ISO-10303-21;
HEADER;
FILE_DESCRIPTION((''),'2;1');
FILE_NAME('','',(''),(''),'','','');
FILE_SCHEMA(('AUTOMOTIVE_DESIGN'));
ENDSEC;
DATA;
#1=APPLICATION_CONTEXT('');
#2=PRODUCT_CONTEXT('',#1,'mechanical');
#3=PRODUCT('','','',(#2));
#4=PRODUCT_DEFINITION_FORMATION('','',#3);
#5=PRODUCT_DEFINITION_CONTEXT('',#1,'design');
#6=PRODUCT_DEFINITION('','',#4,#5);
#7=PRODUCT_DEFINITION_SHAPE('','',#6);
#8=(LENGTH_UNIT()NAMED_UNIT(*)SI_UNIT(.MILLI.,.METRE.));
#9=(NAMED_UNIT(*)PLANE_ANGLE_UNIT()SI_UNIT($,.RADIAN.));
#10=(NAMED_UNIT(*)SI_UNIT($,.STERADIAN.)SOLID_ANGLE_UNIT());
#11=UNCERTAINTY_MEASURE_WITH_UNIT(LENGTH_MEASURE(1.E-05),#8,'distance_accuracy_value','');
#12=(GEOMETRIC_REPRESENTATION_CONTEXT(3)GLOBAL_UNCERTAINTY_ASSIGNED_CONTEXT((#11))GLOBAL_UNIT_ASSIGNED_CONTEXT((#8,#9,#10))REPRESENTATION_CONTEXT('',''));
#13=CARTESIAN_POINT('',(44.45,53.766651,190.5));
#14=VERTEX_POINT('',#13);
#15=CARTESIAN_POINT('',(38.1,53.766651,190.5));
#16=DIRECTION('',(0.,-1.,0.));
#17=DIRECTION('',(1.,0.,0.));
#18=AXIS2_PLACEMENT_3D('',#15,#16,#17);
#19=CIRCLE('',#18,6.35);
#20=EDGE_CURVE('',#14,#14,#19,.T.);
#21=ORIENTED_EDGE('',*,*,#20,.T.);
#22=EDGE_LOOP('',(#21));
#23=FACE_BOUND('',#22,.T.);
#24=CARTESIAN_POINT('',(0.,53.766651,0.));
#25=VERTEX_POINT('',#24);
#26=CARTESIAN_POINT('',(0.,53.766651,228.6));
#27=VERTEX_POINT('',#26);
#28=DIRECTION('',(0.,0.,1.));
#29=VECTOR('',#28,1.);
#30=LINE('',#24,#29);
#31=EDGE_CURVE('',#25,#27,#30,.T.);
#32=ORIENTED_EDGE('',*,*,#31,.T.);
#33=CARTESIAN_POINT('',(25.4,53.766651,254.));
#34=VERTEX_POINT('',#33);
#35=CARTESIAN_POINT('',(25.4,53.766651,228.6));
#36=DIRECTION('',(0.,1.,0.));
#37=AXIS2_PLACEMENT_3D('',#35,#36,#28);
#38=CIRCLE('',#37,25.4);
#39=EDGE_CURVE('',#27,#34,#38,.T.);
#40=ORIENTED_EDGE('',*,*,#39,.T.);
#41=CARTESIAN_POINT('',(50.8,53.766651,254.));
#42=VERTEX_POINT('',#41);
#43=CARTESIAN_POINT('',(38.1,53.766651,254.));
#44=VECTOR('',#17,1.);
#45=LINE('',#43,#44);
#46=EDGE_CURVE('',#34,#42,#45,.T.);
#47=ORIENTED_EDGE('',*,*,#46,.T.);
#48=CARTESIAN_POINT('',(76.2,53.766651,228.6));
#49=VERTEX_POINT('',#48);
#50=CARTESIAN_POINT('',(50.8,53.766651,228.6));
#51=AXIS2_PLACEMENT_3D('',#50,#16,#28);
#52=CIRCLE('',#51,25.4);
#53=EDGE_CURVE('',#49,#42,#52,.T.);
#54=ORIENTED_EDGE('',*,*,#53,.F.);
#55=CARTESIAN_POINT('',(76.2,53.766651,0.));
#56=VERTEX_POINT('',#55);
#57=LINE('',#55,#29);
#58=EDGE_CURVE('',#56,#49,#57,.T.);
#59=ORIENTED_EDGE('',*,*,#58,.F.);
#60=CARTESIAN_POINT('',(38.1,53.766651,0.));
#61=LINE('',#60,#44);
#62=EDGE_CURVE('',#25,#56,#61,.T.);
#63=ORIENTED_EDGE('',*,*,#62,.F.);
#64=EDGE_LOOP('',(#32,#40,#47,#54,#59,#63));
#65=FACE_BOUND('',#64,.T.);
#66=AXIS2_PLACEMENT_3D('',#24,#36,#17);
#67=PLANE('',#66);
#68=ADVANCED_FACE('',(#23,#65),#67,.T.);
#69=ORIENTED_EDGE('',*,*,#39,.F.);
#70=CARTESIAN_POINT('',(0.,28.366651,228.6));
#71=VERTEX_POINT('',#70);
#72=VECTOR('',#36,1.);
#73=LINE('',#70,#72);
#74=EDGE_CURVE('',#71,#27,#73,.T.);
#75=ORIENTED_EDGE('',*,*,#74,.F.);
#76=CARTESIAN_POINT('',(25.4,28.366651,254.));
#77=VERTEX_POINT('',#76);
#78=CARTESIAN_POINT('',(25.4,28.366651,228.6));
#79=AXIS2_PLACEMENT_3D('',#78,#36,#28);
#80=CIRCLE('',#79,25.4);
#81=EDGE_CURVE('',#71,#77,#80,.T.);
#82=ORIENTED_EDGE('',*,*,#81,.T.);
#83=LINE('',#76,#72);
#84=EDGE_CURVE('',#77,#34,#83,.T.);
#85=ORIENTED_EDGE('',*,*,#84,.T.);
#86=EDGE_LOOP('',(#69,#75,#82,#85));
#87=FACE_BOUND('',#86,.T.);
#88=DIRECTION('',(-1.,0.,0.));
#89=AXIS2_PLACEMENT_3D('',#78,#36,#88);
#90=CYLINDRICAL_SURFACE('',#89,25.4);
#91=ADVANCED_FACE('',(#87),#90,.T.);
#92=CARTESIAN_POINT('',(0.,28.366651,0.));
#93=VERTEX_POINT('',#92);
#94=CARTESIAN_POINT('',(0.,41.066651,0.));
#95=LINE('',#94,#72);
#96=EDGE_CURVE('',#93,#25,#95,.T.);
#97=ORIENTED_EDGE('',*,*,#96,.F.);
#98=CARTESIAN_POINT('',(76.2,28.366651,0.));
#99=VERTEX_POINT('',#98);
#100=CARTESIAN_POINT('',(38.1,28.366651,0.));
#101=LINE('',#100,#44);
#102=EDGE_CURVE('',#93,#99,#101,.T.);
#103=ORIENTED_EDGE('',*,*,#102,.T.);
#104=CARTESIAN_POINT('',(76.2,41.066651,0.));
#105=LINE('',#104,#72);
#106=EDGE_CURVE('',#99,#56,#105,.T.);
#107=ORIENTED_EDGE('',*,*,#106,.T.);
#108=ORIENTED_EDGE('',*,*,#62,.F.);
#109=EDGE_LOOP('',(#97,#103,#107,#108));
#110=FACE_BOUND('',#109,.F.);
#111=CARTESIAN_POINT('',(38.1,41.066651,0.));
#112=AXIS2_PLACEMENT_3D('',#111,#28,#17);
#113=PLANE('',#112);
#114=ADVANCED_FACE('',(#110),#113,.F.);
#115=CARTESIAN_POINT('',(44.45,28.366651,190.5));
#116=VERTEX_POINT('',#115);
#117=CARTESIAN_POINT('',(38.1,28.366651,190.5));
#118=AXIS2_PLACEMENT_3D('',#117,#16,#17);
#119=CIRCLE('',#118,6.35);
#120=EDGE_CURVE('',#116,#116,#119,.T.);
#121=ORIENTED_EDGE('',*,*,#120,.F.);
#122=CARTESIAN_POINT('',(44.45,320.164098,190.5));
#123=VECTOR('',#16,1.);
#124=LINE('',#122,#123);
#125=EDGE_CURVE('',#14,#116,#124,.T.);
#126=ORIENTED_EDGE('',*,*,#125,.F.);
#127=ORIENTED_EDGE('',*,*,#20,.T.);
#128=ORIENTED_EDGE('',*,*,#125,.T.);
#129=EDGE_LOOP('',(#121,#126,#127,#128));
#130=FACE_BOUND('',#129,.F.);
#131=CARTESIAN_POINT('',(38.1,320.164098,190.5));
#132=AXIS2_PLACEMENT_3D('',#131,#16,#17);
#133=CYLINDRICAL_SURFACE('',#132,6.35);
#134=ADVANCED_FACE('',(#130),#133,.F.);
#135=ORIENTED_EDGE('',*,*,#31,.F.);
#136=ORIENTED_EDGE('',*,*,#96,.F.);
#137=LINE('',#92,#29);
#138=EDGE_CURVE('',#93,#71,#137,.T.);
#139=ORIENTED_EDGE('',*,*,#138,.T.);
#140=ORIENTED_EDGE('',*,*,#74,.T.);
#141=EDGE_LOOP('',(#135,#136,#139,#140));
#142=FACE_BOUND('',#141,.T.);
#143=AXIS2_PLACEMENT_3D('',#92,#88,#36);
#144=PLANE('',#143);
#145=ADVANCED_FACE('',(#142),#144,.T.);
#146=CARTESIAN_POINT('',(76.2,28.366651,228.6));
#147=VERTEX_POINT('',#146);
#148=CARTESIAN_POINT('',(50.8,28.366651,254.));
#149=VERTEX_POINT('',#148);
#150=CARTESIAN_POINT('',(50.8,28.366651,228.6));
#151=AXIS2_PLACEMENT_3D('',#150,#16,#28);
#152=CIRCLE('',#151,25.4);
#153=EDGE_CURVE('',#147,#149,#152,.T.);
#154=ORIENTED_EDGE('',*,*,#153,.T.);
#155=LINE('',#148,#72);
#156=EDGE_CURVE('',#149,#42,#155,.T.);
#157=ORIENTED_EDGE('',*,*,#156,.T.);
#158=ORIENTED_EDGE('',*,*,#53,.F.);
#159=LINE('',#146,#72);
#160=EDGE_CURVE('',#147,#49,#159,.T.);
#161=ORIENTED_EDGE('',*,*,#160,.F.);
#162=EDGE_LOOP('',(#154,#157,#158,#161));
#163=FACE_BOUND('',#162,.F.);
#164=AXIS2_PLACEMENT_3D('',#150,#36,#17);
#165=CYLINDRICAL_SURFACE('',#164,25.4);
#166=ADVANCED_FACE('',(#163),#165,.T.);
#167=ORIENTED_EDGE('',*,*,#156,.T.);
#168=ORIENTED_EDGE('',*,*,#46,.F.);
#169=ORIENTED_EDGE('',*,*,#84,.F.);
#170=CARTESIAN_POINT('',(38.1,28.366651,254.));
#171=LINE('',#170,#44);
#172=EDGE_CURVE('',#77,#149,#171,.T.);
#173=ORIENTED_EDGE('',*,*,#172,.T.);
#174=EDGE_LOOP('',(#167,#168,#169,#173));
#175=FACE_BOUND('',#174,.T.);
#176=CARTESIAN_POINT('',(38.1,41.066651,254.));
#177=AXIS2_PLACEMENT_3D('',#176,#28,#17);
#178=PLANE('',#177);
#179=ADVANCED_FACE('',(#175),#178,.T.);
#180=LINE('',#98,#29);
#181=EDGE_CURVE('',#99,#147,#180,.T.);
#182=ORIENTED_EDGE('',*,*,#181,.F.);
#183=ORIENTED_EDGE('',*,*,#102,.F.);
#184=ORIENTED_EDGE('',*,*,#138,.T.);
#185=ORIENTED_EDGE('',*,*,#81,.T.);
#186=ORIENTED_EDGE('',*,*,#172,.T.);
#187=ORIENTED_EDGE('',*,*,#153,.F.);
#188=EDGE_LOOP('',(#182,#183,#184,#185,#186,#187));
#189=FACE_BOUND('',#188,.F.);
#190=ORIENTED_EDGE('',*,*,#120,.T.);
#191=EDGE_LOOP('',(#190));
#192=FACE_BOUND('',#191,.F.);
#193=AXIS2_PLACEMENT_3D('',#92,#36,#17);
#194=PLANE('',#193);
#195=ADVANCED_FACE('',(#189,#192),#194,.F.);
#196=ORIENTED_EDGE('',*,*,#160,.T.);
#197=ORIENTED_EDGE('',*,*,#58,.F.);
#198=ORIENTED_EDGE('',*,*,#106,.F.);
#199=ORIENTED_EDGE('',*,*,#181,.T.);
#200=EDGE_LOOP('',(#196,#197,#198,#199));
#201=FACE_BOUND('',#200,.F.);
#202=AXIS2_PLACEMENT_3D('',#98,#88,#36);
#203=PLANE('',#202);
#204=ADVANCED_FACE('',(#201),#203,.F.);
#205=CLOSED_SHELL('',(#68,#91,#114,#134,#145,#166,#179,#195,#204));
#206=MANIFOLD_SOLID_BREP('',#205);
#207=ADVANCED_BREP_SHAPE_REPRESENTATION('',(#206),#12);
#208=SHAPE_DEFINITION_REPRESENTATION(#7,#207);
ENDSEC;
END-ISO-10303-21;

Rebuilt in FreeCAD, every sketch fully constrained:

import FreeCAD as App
import Part
import Sketcher

V = App.Vector
Q = App.Units.Quantity


def edges_at(feature, points):
    """Names of the edges that pass closest to the given points."""
    edges = feature.Shape.Edges
    near = lambda p: min(range(len(edges)), key=lambda i: edges[i].distToShape(Part.Vertex(*p))[0])
    return sorted({f"Edge{near(p) + 1}" for p in points})

doc = App.newDocument("Part")
body = doc.addObject("PartDesign::Body", "Body")

# Sketch on XY plane
sketch1 = body.newObject("Sketcher::SketchObject", "Sketch")
sketch1.AttachmentSupport = (doc.getObject("XY_Plane"), [""])
sketch1.MapMode = "FlatFace"
sketch1.addGeometry([
    Part.LineSegment(V(0, 53.766651, 0), V(0, 28.366651, 0)),
    Part.LineSegment(V(0, 28.366651, 0), V(76.2, 28.366651, 0)),
    Part.LineSegment(V(76.2, 28.366651, 0), V(76.2, 53.766651, 0)),
    Part.LineSegment(V(76.2, 53.766651, 0), V(0, 53.766651, 0)),
], False)
sketch1.addConstraint([
    Sketcher.Constraint("Coincident", 0, 2, 1, 1),
    Sketcher.Constraint("Coincident", 1, 2, 2, 1),
    Sketcher.Constraint("Coincident", 2, 2, 3, 1),
    Sketcher.Constraint("Coincident", 3, 2, 0, 1),
    Sketcher.Constraint("Vertical", 0),
    Sketcher.Constraint("Horizontal", 1),
    Sketcher.Constraint("Vertical", 2),
    Sketcher.Constraint("Horizontal", 3),
    Sketcher.Constraint("PointOnObject", 0, 2, -2),
    Sketcher.Constraint("DistanceX", 1, 1, 1, 2, Q("3 in")),
    Sketcher.Constraint("DistanceY", 0, 2, 0, 1, Q("1 in")),
    Sketcher.Constraint("DistanceY", -1, 1, 0, 2, Q("28.366651 mm")),
])
pad1 = body.newObject("PartDesign::Pad", "Pad")
pad1.Profile = sketch1
pad1.Length = Q("10 in")
doc.recompute()

fillet = body.newObject("PartDesign::Fillet", "Fillet")
fillet.Base = (pad1, edges_at(pad1, [(0, 41.067, 254), (76.2, 41.067, 254)]))
fillet.Radius = Q("1 in")

# Sketch on XZ plane
sketch2 = body.newObject("Sketcher::SketchObject", "Sketch001")
sketch2.AttachmentSupport = (doc.getObject("XZ_Plane"), [""])
sketch2.MapMode = "FlatFace"
sketch2.AttachmentOffset = App.Placement(V(0, 0, -53.766651), App.Rotation())
sketch2.addGeometry(Part.Circle(V(38.1, 190.5, 0), V(0, 0, 1), 6.35), False)
sketch2.addConstraint([
    Sketcher.Constraint("Diameter", 0, Q("0.5 in")),
    Sketcher.Constraint("DistanceX", -1, 1, 0, 3, Q("1.5 in")),
    Sketcher.Constraint("DistanceY", -1, 1, 0, 3, Q("7.5 in")),
])
doc.recompute()
hole = body.newObject("PartDesign::Hole", "Hole")
hole.Profile = sketch2
hole.ThreadType = "None"
hole.Diameter = Q("0.5 in")
hole.DepthType = "ThroughAll"
hole.Reversed = True

doc.recompute()
